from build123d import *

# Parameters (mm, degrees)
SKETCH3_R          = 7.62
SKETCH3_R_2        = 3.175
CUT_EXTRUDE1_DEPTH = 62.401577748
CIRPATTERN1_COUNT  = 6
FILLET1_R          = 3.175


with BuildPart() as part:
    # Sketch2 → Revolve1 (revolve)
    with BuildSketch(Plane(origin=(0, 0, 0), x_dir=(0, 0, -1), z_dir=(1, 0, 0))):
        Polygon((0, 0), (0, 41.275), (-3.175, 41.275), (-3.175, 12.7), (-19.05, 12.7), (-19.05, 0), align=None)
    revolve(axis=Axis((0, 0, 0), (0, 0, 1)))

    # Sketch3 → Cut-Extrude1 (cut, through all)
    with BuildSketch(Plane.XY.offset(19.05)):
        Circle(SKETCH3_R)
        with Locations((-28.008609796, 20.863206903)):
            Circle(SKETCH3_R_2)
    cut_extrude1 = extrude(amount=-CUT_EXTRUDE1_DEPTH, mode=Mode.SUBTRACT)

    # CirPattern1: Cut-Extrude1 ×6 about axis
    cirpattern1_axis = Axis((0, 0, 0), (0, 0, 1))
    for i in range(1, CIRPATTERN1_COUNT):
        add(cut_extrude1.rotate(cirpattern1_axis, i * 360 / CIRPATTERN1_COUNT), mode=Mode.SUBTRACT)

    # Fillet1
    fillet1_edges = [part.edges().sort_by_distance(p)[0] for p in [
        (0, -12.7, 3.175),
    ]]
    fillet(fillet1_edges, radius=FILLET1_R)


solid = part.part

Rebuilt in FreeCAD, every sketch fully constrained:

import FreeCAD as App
import Part
import Sketcher

V = App.Vector
Q = App.Units.Quantity


def edges_at(feature, points):
    """Names of the edges that pass closest to the given points."""
    edges = feature.Shape.Edges
    near = lambda p: min(range(len(edges)), key=lambda i: edges[i].distToShape(Part.Vertex(*p))[0])
    return sorted({f"Edge{near(p) + 1}" for p in points})

doc = App.newDocument("Part")
body = doc.addObject("PartDesign::Body", "Body")

sketch1 = doc.addObject("Sketcher::SketchObject", "Sketch")
body.addObject(sketch1)
sketch1.AttachmentSupport = (doc.YZ_Plane, [""])
sketch1.MapMode = "FlatFace"
sketch1.addGeometry([
    Part.LineSegment(V(0, 0, 0), V(41.3, 0, 0)),
    Part.LineSegment(V(41.3, 0, 0), V(41.3, 3.2, 0)),
    Part.LineSegment(V(41.3, 3.2, 0), V(12.7, 3.2, 0)),
    Part.LineSegment(V(12.7, 3.2, 0), V(12.7, 19.1, 0)),
    Part.LineSegment(V(12.7, 19.1, 0), V(0, 19.1, 0)),
    Part.LineSegment(V(0, 19.1, 0), V(0, 0, 0)),
], False)
sketch1.addConstraint([
    Sketcher.Constraint("Coincident", 0, 2, 1, 1),
    Sketcher.Constraint("Coincident", 1, 2, 2, 1),
    Sketcher.Constraint("Coincident", 2, 2, 3, 1),
    Sketcher.Constraint("Coincident", 3, 2, 4, 1),
    Sketcher.Constraint("Coincident", 4, 2, 5, 1),
    Sketcher.Constraint("Coincident", 5, 2, 0, 1),
    Sketcher.Constraint("Horizontal", 0),
    Sketcher.Constraint("Vertical", 1),
    Sketcher.Constraint("Horizontal", 2),
    Sketcher.Constraint("Vertical", 3),
    Sketcher.Constraint("Horizontal", 4),
    Sketcher.Constraint("Vertical", 5),
    Sketcher.Constraint("Coincident", 5, 2, -1, 1),
    Sketcher.Constraint("DistanceX", 4, 2, 4, 1, Q("0.5 in")),
    Sketcher.Constraint("DistanceY", 5, 2, 5, 1, Q("0.75 in")),
    Sketcher.Constraint("DistanceX", 0, 1, 0, 2, Q("1.625 in")),
    Sketcher.Constraint("DistanceY", 1, 1, 1, 2, Q("0.125 in")),
])
revolution = doc.addObject("PartDesign::Revolution", "Revolution")
body.addObject(revolution)
revolution.Profile = sketch1
revolution.ReferenceAxis = (sketch1, ["V_Axis"])
revolution.Angle = 360

sketch2 = doc.addObject("Sketcher::SketchObject", "Sketch001")
body.addObject(sketch2)
sketch2.AttachmentSupport = (doc.XY_Plane, [""])
sketch2.MapMode = "FlatFace"
sketch2.AttachmentOffset = App.Placement(V(0, 0, 0.75 * 25.4), App.Rotation())
sketch2.addGeometry([
    Part.Circle(V(0, 0, 0), V(0, 0, 1), 7.6),
    Part.Circle(V(-28, 20.9, 0), V(0, 0, 1), 3.2),
], False)
sketch2.addConstraint([
    Sketcher.Constraint("Coincident", 0, 3, -1, 1),
    Sketcher.Constraint("Diameter", 0, Q("0.6 in")),
    Sketcher.Constraint("Diameter", 1, Q("0.25 in")),
    Sketcher.Constraint("DistanceX", 1, 3, -1, 1, 28.00861),
    Sketcher.Constraint("DistanceY", -1, 1, 1, 3, 20.863207),
])
pocket1 = doc.addObject("PartDesign::Pocket", "Pocket")
body.addObject(pocket1)
pocket1.Profile = sketch2
pocket1.Type = "ThroughAll"
doc.recompute()

polarpattern = doc.addObject("PartDesign::PolarPattern", "PolarPattern")
body.addObject(polarpattern)
polarpattern.Originals = [pocket1]
polarpattern.Axis = (doc.Z_Axis, [""])
polarpattern.Angle = 360
polarpattern.Occurrences = 6
body.Tip = polarpattern
doc.recompute()

fillet = doc.addObject("PartDesign::Fillet", "Fillet")
body.addObject(fillet)
fillet.Base = (polarpattern, edges_at(polarpattern, [(0, -12.7, 3.175)]))
fillet.Radius = Q("0.125 in")

doc.recompute()
